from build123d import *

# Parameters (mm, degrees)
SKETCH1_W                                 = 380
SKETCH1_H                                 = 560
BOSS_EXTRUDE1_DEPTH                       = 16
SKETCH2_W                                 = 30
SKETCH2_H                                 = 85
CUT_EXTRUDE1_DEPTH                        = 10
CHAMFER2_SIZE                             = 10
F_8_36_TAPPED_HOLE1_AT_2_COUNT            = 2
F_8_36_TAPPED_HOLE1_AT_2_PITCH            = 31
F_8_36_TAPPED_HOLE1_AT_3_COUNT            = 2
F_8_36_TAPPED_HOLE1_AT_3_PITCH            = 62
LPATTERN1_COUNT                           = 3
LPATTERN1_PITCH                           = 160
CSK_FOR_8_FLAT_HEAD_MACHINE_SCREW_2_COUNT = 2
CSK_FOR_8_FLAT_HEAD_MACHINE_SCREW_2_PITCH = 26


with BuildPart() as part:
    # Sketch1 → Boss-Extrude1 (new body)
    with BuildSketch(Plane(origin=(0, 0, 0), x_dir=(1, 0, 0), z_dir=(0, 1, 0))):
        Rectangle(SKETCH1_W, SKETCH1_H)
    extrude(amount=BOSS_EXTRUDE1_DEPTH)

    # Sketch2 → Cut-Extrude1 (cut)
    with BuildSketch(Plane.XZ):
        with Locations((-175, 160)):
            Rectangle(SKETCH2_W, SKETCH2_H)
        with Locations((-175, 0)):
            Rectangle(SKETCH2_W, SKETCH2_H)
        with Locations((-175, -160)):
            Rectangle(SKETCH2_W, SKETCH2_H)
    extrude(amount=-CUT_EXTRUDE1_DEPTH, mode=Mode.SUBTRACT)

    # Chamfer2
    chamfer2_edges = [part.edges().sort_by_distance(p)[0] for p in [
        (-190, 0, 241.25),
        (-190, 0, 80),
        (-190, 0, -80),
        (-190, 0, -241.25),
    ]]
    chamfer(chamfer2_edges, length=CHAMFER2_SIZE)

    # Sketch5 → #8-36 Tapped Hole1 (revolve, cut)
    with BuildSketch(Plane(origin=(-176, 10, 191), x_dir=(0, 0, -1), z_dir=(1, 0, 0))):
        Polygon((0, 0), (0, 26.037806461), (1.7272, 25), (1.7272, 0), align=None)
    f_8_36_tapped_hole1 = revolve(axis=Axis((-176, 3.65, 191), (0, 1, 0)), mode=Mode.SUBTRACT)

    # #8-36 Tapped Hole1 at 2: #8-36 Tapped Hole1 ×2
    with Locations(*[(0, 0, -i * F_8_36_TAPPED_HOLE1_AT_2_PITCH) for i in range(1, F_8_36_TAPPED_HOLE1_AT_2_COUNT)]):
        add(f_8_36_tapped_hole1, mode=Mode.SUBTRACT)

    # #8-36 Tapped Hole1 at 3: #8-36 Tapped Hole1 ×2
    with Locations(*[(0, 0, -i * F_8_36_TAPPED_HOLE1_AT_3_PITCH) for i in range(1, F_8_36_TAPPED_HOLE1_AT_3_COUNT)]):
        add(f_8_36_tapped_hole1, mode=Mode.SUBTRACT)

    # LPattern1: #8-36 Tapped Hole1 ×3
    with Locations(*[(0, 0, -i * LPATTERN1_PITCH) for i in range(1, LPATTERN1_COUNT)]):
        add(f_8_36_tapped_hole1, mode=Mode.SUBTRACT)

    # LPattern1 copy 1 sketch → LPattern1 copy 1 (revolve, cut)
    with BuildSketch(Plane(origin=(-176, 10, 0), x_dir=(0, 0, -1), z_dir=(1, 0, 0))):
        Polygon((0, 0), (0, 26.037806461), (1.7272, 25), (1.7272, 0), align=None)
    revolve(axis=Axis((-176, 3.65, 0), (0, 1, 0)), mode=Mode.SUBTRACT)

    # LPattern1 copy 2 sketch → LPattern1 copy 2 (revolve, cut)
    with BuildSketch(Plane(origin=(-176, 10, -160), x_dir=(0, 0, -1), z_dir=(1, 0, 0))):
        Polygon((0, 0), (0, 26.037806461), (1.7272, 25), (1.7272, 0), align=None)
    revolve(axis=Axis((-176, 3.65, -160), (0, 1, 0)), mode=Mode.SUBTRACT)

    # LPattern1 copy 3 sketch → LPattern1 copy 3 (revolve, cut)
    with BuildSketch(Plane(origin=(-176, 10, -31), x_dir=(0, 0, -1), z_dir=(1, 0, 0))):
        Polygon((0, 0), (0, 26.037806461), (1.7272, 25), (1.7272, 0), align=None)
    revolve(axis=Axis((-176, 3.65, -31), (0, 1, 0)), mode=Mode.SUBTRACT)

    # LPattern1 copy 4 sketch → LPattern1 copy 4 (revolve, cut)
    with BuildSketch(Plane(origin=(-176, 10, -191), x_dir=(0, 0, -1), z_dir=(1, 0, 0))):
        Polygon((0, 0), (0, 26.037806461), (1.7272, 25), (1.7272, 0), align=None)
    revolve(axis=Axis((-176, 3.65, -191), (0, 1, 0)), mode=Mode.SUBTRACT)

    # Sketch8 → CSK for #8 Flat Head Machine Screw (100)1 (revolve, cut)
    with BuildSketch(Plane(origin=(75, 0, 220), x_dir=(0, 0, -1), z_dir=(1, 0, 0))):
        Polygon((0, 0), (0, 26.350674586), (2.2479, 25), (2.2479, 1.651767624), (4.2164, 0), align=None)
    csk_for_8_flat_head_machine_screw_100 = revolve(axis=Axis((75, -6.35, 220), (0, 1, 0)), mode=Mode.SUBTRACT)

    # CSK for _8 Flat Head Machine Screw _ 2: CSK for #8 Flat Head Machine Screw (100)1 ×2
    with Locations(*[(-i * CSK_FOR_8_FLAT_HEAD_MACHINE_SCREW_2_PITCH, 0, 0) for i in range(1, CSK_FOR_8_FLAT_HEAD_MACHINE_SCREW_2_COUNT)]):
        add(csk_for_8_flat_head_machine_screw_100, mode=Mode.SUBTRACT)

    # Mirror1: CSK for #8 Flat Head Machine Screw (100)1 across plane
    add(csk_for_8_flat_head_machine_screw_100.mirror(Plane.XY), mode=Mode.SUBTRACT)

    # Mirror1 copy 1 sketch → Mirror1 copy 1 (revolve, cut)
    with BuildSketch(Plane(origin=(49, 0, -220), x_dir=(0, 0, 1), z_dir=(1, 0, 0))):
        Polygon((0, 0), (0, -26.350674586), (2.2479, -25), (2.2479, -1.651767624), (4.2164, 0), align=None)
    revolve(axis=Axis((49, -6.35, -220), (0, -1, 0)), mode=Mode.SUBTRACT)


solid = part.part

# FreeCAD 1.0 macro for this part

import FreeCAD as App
import Part
import Sketcher

V = App.Vector
Q = App.Units.Quantity


def edges_at(feature, points):
    """Names of the edges that pass closest to the given points."""
    edges = feature.Shape.Edges
    near = lambda p: min(range(len(edges)), key=lambda i: edges[i].distToShape(Part.Vertex(*p))[0])
    return sorted({f"Edge{near(p) + 1}" for p in points})


def add_polygon(sketch, points):
    """Adds a closed chain of lines whose ends are joined by coincident constraints."""
    first, n = sketch.GeometryCount, len(points)
    for a, b in zip(points, points[1:] + points[:1]):
        sketch.addGeometry(Part.LineSegment(App.Vector(*a, 0), App.Vector(*b, 0)), False)
    for i in range(n):
        sketch.addConstraint(Sketcher.Constraint("Coincident", first + i, 2, first + (i + 1) % n, 1))

doc = App.newDocument("Part")
body = doc.addObject("PartDesign::Body", "Body")

sketch1 = doc.addObject("Sketcher::SketchObject", "Sketch")
body.addObject(sketch1)
sketch1.AttachmentSupport = (doc.XZ_Plane, [""])
sketch1.MapMode = "FlatFace"
add_polygon(sketch1, [(-190, -280), (-190, 280), (190, 280), (190, -280)])
sketch1.addConstraint([
    Sketcher.Constraint("Vertical", 0),
    Sketcher.Constraint("Horizontal", 1),
    Sketcher.Constraint("Vertical", 2),
    Sketcher.Constraint("Horizontal", 3),
    Sketcher.Constraint("Symmetric", 0, 2, 2, 2, -1, 1),
    Sketcher.Constraint("DistanceX", 1, 1, 1, 2, Q("380 mm")),
    Sketcher.Constraint("DistanceY", 0, 1, 0, 2, Q("560 mm")),
])
pad1 = doc.addObject("PartDesign::Pad", "Pad")
body.addObject(pad1)
pad1.Profile = sketch1
pad1.Length = 16
pad1.Reversed = True

sketch2 = doc.addObject("Sketcher::SketchObject", "Sketch001")
body.addObject(sketch2)
sketch2.AttachmentSupport = (doc.XZ_Plane, [""])
sketch2.MapMode = "FlatFace"
add_polygon(sketch2, [(-190, 202), (-190, 118), (-160, 118), (-160, 202)])
add_polygon(sketch2, [(-190, 42), (-190, -42), (-160, -42), (-160, 42)])
add_polygon(sketch2, [(-190, -118), (-190, -202), (-160, -202), (-160, -118)])
sketch2.addConstraint([
    Sketcher.Constraint("Vertical", 0),
    Sketcher.Constraint("Horizontal", 1),
    Sketcher.Constraint("Vertical", 2),
    Sketcher.Constraint("Horizontal", 3),
    Sketcher.Constraint("Vertical", 4),
    Sketcher.Constraint("Horizontal", 5),
    Sketcher.Constraint("Vertical", 6),
    Sketcher.Constraint("Horizontal", 7),
    Sketcher.Constraint("Vertical", 8),
    Sketcher.Constraint("Horizontal", 9),
    Sketcher.Constraint("Vertical", 10),
    Sketcher.Constraint("Horizontal", 11),
    Sketcher.Constraint("Symmetric", 3, 2, 8, 2, -1),
    Sketcher.Constraint("Symmetric", 1, 2, 10, 2, -1),
    Sketcher.Constraint("Vertical", 3, 2, 4, 2),
    Sketcher.Constraint("Vertical", 2, 2, 5, 2),
    Sketcher.Constraint("Equal", 2, 4),
    Sketcher.Constraint("DistanceX", 1, 1, 1, 2, Q("30 mm")),
    Sketcher.Constraint("DistanceY", 0, 2, 0, 1, Q("85 mm")),
    Sketcher.Constraint("DistanceX", 0, 2, -1, 1, Q("190 mm")),
    Sketcher.Constraint("DistanceY", 4, 2, 0, 2, Q("160 mm")),
    Sketcher.Constraint("DistanceY", 8, 2, 4, 2, Q("160 mm")),
])
pocket1 = doc.addObject("PartDesign::Pocket", "Pocket")
body.addObject(pocket1)
pocket1.Profile = sketch2
pocket1.Length = 10
doc.recompute()

chamfer = doc.addObject("PartDesign::Chamfer", "Chamfer")
body.addObject(chamfer)
chamfer.Base = (pocket1, edges_at(pocket1, [
    (-190, 0, 241.25),
    (-190, 0, 80),
    (-190, 0, -80),
    (-190, 0, -241.25),
]))
chamfer.Size = 10

sketch3 = doc.addObject("Sketcher::SketchObject", "Sketch002")
body.addObject(sketch3)
sketch3.AttachmentSupport = (doc.YZ_Plane, [""])
sketch3.MapMode = "FlatFace"
sketch3.AttachmentOffset = App.Placement(V(0, 0, -176), App.Rotation())
add_polygon(sketch3, [(36, 191), (10, 191), (10, 189.3), (35, 189.3)])
sketch3.addGeometry(Part.LineSegment(V(10, 191, 0), V(36, 191, 0)), True)
sketch3.addConstraint([
    Sketcher.Constraint("Horizontal", 0),
    Sketcher.Constraint("Vertical", 1),
    Sketcher.Constraint("Horizontal", 2),
    Sketcher.Constraint("Horizontal", 4),
    Sketcher.Constraint("Coincident", 4, 1, 0, 2),
    Sketcher.Constraint("Equal", 0, 4),
    Sketcher.Constraint("DistanceX", 2, 1, 2, 2, Q("25 mm")),
    Sketcher.Constraint("Angle", 3, Q("59 deg")),
    Sketcher.Constraint("DistanceX", -1, 1, 0, 2, Q("10 mm")),
    Sketcher.Constraint("DistanceY", -1, 1, 0, 2, Q("191 mm")),
    Sketcher.Constraint("DistanceY", 1, 2, 1, 1, Q("1.7272 mm")),
])
groove = doc.addObject("PartDesign::Groove", "Groove")
body.addObject(groove)
groove.Profile = sketch3
groove.ReferenceAxis = (sketch3, ["Axis0"])
groove.Angle = 360
doc.recompute()

linearpattern = doc.addObject("PartDesign::LinearPattern", "LinearPattern")
body.addObject(linearpattern)
linearpattern.Originals = [groove]
linearpattern.Direction = (doc.Z_Axis, [""])
linearpattern.Mode = "offset"
linearpattern.Offset = 31
linearpattern.Occurrences = 2
linearpattern.Reversed = True
body.Tip = linearpattern
doc.recompute()

linearpattern2 = doc.addObject("PartDesign::LinearPattern", "LinearPattern001")
body.addObject(linearpattern2)
linearpattern2.Originals = [groove]
linearpattern2.Direction = (doc.Z_Axis, [""])
linearpattern2.Mode = "offset"
linearpattern2.Offset = 62
linearpattern2.Occurrences = 2
linearpattern2.Reversed = True
body.Tip = linearpattern2
doc.recompute()

linearpattern3 = doc.addObject("PartDesign::LinearPattern", "LinearPattern002")
body.addObject(linearpattern3)
linearpattern3.Originals = [groove]
linearpattern3.Direction = (doc.Z_Axis, [""])
linearpattern3.Mode = "offset"
linearpattern3.Offset = 160
linearpattern3.Occurrences = 3
linearpattern3.Reversed = True
body.Tip = linearpattern3

sketch4 = doc.addObject("Sketcher::SketchObject", "Sketch003")
body.addObject(sketch4)
sketch4.AttachmentSupport = (doc.YZ_Plane, [""])
sketch4.MapMode = "FlatFace"
sketch4.AttachmentOffset = App.Placement(V(0, 0, -176), App.Rotation())
add_polygon(sketch4, [(36, 0), (10, 0), (10, -1.7), (35, -1.7)])
sketch4.addConstraint([
    Sketcher.Constraint("Horizontal", 0),
    Sketcher.Constraint("Vertical", 1),
    Sketcher.Constraint("Horizontal", 2),
    Sketcher.Constraint("PointOnObject", 0, 2, -1),
    Sketcher.Constraint("DistanceX", 2, 1, 2, 2, Q("25 mm")),
    Sketcher.Constraint("Angle", 3, Q("59 deg")),
    Sketcher.Constraint("DistanceX", -1, 1, 0, 2, Q("10 mm")),
    Sketcher.Constraint("DistanceY", 1, 2, 1, 1, Q("1.7272 mm")),
])
groove2 = doc.addObject("PartDesign::Groove", "Groove001")
body.addObject(groove2)
groove2.Profile = sketch4
groove2.ReferenceAxis = (sketch4, ["H_Axis"])
groove2.Angle = 360

sketch5 = doc.addObject("Sketcher::SketchObject", "Sketch004")
body.addObject(sketch5)
sketch5.AttachmentSupport = (doc.YZ_Plane, [""])
sketch5.MapMode = "FlatFace"
sketch5.AttachmentOffset = App.Placement(V(0, 0, -176), App.Rotation())
add_polygon(sketch5, [(36, -160), (10, -160), (10, -161.7), (35, -161.7)])
sketch5.addGeometry(Part.LineSegment(V(10, -160, 0), V(36, -160, 0)), True)
sketch5.addConstraint([
    Sketcher.Constraint("Horizontal", 0),
    Sketcher.Constraint("Vertical", 1),
    Sketcher.Constraint("Horizontal", 2),
    Sketcher.Constraint("Horizontal", 4),
    Sketcher.Constraint("Coincident", 4, 1, 0, 2),
    Sketcher.Constraint("Equal", 0, 4),
    Sketcher.Constraint("DistanceX", 2, 1, 2, 2, Q("25 mm")),
    Sketcher.Constraint("Angle", 3, Q("59 deg")),
    Sketcher.Constraint("DistanceX", -1, 1, 0, 2, Q("10 mm")),
    Sketcher.Constraint("DistanceY", 0, 2, -1, 1, Q("160 mm")),
    Sketcher.Constraint("DistanceY", 1, 2, 1, 1, Q("1.7272 mm")),
])
groove3 = doc.addObject("PartDesign::Groove", "Groove002")
body.addObject(groove3)
groove3.Profile = sketch5
groove3.ReferenceAxis = (sketch5, ["Axis0"])
groove3.Angle = 360

sketch6 = doc.addObject("Sketcher::SketchObject", "Sketch005")
body.addObject(sketch6)
sketch6.AttachmentSupport = (doc.YZ_Plane, [""])
sketch6.MapMode = "FlatFace"
sketch6.AttachmentOffset = App.Placement(V(0, 0, -176), App.Rotation())
add_polygon(sketch6, [(36, -31), (10, -31), (10, -32.7), (35, -32.7)])
sketch6.addGeometry(Part.LineSegment(V(10, -31, 0), V(36, -31, 0)), True)
sketch6.addConstraint([
    Sketcher.Constraint("Horizontal", 0),
    Sketcher.Constraint("Vertical", 1),
    Sketcher.Constraint("Horizontal", 2),
    Sketcher.Constraint("Horizontal", 4),
    Sketcher.Constraint("Coincident", 4, 1, 0, 2),
    Sketcher.Constraint("Equal", 0, 4),
    Sketcher.Constraint("DistanceX", 2, 1, 2, 2, Q("25 mm")),
    Sketcher.Constraint("Angle", 3, Q("59 deg")),
    Sketcher.Constraint("DistanceX", -1, 1, 0, 2, Q("10 mm")),
    Sketcher.Constraint("DistanceY", 0, 2, -1, 1, Q("31 mm")),
    Sketcher.Constraint("DistanceY", 1, 2, 1, 1, Q("1.7272 mm")),
])
groove4 = doc.addObject("PartDesign::Groove", "Groove003")
body.addObject(groove4)
groove4.Profile = sketch6
groove4.ReferenceAxis = (sketch6, ["Axis0"])
groove4.Angle = 360

sketch7 = doc.addObject("Sketcher::SketchObject", "Sketch006")
body.addObject(sketch7)
sketch7.AttachmentSupport = (doc.YZ_Plane, [""])
sketch7.MapMode = "FlatFace"
sketch7.AttachmentOffset = App.Placement(V(0, 0, -176), App.Rotation())
add_polygon(sketch7, [(36, -191), (10, -191), (10, -192.7), (35, -192.7)])
sketch7.addGeometry(Part.LineSegment(V(10, -191, 0), V(36, -191, 0)), True)
sketch7.addConstraint([
    Sketcher.Constraint("Horizontal", 0),
    Sketcher.Constraint("Vertical", 1),
    Sketcher.Constraint("Horizontal", 2),
    Sketcher.Constraint("Horizontal", 4),
    Sketcher.Constraint("Coincident", 4, 1, 0, 2),
    Sketcher.Constraint("Equal", 0, 4),
    Sketcher.Constraint("DistanceX", 2, 1, 2, 2, Q("25 mm")),
    Sketcher.Constraint("Angle", 3, Q("59 deg")),
    Sketcher.Constraint("DistanceX", -1, 1, 0, 2, Q("10 mm")),
    Sketcher.Constraint("DistanceY", 0, 2, -1, 1, Q("191 mm")),
    Sketcher.Constraint("DistanceY", 1, 2, 1, 1, Q("1.7272 mm")),
])
groove5 = doc.addObject("PartDesign::Groove", "Groove004")
body.addObject(groove5)
groove5.Profile = sketch7
groove5.ReferenceAxis = (sketch7, ["Axis0"])
groove5.Angle = 360

sketch8 = doc.addObject("Sketcher::SketchObject", "Sketch007")
body.addObject(sketch8)
sketch8.AttachmentSupport = (doc.YZ_Plane, [""])
sketch8.MapMode = "FlatFace"
sketch8.AttachmentOffset = App.Placement(V(0, 0, 75), App.Rotation())
add_polygon(sketch8, [(26.4, 220), (0, 220), (0, 215.8), (1.7, 217.8), (25, 217.8)])
sketch8.addGeometry(Part.LineSegment(V(0, 220, 0), V(26.4, 220, 0)), True)
sketch8.addConstraint([
    Sketcher.Constraint("Horizontal", 0),
    Sketcher.Constraint("Vertical", 1),
    Sketcher.Constraint("Horizontal", 3),
    Sketcher.Constraint("Horizontal", 5),
    Sketcher.Constraint("Coincident", 5, 1, 0, 2),
    Sketcher.Constraint("PointOnObject", 0, 2, -2),
    Sketcher.Constraint("Equal", 0, 5),
    Sketcher.Constraint("Angle", 2, Q("50 deg")),
    Sketcher.Constraint("Angle", 4, Q("59 deg")),
    Sketcher.Constraint("DistanceY", -1, 1, 0, 2, Q("220 mm")),
    Sketcher.Constraint("DistanceX", -1, 1, 3, 2, Q("25 mm")),
    Sketcher.Constraint("DistanceY", 1, 2, 1, 1, Q("4.2164 mm")),
    Sketcher.Constraint("DistanceY", -1, 1, 2, 2, Q("217.7521 mm")),
])
groove6 = doc.addObject("PartDesign::Groove", "Groove005")
body.addObject(groove6)
groove6.Profile = sketch8
groove6.ReferenceAxis = (sketch8, ["Axis0"])
groove6.Angle = 360
doc.recompute()

linearpattern4 = doc.addObject("PartDesign::LinearPattern", "LinearPattern003")
body.addObject(linearpattern4)
linearpattern4.Originals = [groove6]
linearpattern4.Direction = (doc.X_Axis, [""])
linearpattern4.Mode = "offset"
linearpattern4.Offset = 26
linearpattern4.Occurrences = 2
linearpattern4.Reversed = True
body.Tip = linearpattern4
doc.recompute()

mirrored = doc.addObject("PartDesign::Mirrored", "Mirrored")
body.addObject(mirrored)
mirrored.Originals = [groove6]
mirrored.MirrorPlane = (doc.XY_Plane, [""])
body.Tip = mirrored

sketch9 = doc.addObject("Sketcher::SketchObject", "Sketch008")
body.addObject(sketch9)
sketch9.AttachmentSupport = (doc.YZ_Plane, [""])
sketch9.MapMode = "FlatFace"
sketch9.AttachmentOffset = App.Placement(V(0, 0, 49), App.Rotation())
add_polygon(sketch9, [(0, -220), (26.4, -220), (25, -217.8), (1.7, -217.8), (0, -215.8)])
sketch9.addGeometry(Part.LineSegment(V(26.4, -220, 0), V(0, -220, 0)), True)
sketch9.addConstraint([
    Sketcher.Constraint("Horizontal", 0),
    Sketcher.Constraint("Horizontal", 2),
    Sketcher.Constraint("Vertical", 4),
    Sketcher.Constraint("Horizontal", 5),
    Sketcher.Constraint("Coincident", 5, 1, 0, 2),
    Sketcher.Constraint("PointOnObject", 3, 2, -2),
    Sketcher.Constraint("PointOnObject", 5, 2, -2),
    Sketcher.Constraint("Angle", 1, Q("121 deg")),
    Sketcher.Constraint("Angle", 3, Q("130 deg")),
    Sketcher.Constraint("DistanceY", 0, 2, -1, 1, Q("220 mm")),
    Sketcher.Constraint("DistanceX", -1, 1, 1, 2, Q("25 mm")),
    Sketcher.Constraint("DistanceY", 4, 2, 4, 1, Q("4.2164 mm")),
    Sketcher.Constraint("DistanceY", 1, 2, -1, 1, Q("217.7521 mm")),
])
groove7 = doc.addObject("PartDesign::Groove", "Groove006")
body.addObject(groove7)
groove7.Profile = sketch9
groove7.ReferenceAxis = (sketch9, ["Axis0"])
groove7.Angle = 360

doc.recompute()
